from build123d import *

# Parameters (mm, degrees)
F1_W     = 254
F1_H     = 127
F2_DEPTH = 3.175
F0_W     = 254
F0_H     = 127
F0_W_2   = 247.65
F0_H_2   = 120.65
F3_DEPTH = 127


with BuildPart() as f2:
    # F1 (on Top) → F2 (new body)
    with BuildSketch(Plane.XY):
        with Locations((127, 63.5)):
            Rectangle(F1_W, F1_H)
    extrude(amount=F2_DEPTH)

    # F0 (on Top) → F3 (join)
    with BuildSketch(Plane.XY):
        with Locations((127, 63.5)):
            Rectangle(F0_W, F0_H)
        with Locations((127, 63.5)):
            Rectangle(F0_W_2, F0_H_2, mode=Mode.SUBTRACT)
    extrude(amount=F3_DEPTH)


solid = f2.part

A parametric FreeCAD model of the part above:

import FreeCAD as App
import Part
import Sketcher
from FreeCAD import Vector
Q = App.Units.Quantity

doc = App.newDocument("Part")
body = doc.addObject("PartDesign::Body", "Body")

sketch1 = body.newObject("Sketcher::SketchObject", "Sketch")
sketch1.AttachmentSupport = (doc.getObject("XY_Plane"), [""])
sketch1.MapMode = "FlatFace"
sketch1.addGeometry([
    Part.LineSegment(Vector(0, 127, 0), Vector(0, 0, 0)),
    Part.LineSegment(Vector(0, 0, 0), Vector(254, 0, 0)),
    Part.LineSegment(Vector(254, 0, 0), Vector(254, 127, 0)),
    Part.LineSegment(Vector(254, 127, 0), Vector(0, 127, 0)),
], False)
sketch1.addConstraint([
    Sketcher.Constraint("Coincident", 0, 2, 1, 1),
    Sketcher.Constraint("Coincident", 1, 2, 2, 1),
    Sketcher.Constraint("Coincident", 2, 2, 3, 1),
    Sketcher.Constraint("Coincident", 3, 2, 0, 1),
    Sketcher.Constraint("Vertical", 0),
    Sketcher.Constraint("Horizontal", 1),
    Sketcher.Constraint("Vertical", 2),
    Sketcher.Constraint("Horizontal", 3),
    Sketcher.Constraint("Coincident", 0, 2, -1, 1),
    Sketcher.Constraint("DistanceX", 1, 1, 1, 2, Q("10 in")),
    Sketcher.Constraint("DistanceY", 0, 2, 0, 1, Q("5 in")),
])
pad1 = body.newObject("PartDesign::Pad", "Pad")
pad1.Profile = sketch1
pad1.Length = Q("0.125 in")

sketch2 = body.newObject("Sketcher::SketchObject", "Sketch001")
sketch2.AttachmentSupport = (doc.getObject("XY_Plane"), [""])
sketch2.MapMode = "FlatFace"
sketch2.addGeometry([
    Part.LineSegment(Vector(0, 127, 0), Vector(0, 0, 0)),
    Part.LineSegment(Vector(0, 0, 0), Vector(254, 0, 0)),
    Part.LineSegment(Vector(254, 0, 0), Vector(254, 127, 0)),
    Part.LineSegment(Vector(254, 127, 0), Vector(0, 127, 0)),
    Part.LineSegment(Vector(250.825, 3.175, 0), Vector(3.175, 3.175, 0)),
    Part.LineSegment(Vector(3.175, 3.175, 0), Vector(3.175, 123.825, 0)),
    Part.LineSegment(Vector(3.175, 123.825, 0), Vector(250.825, 123.825, 0)),
    Part.LineSegment(Vector(250.825, 123.825, 0), Vector(250.825, 3.175, 0)),
], False)
sketch2.addConstraint([
    Sketcher.Constraint("Coincident", 0, 2, 1, 1),
    Sketcher.Constraint("Coincident", 1, 2, 2, 1),
    Sketcher.Constraint("Coincident", 2, 2, 3, 1),
    Sketcher.Constraint("Coincident", 3, 2, 0, 1),
    Sketcher.Constraint("Coincident", 4, 2, 5, 1),
    Sketcher.Constraint("Coincident", 5, 2, 6, 1),
    Sketcher.Constraint("Coincident", 6, 2, 7, 1),
    Sketcher.Constraint("Coincident", 7, 2, 4, 1),
    Sketcher.Constraint("Vertical", 0),
    Sketcher.Constraint("Horizontal", 1),
    Sketcher.Constraint("Vertical", 2),
    Sketcher.Constraint("Horizontal", 3),
    Sketcher.Constraint("Horizontal", 4),
    Sketcher.Constraint("Vertical", 5),
    Sketcher.Constraint("Horizontal", 6),
    Sketcher.Constraint("Vertical", 7),
    Sketcher.Constraint("Coincident", 0, 2, -1, 1),
    Sketcher.Constraint("DistanceX", 1, 1, 1, 2, Q("10 in")),
    Sketcher.Constraint("DistanceY", 0, 2, 0, 1, Q("5 in")),
    Sketcher.Constraint("DistanceX", 4, 2, 4, 1, Q("9.75 in")),
    Sketcher.Constraint("DistanceY", 5, 1, 5, 2, Q("4.75 in")),
    Sketcher.Constraint("DistanceX", -1, 1, 4, 2, Q("0.125 in")),
    Sketcher.Constraint("DistanceY", -1, 1, 4, 2, Q("0.125 in")),
])
pad2 = body.newObject("PartDesign::Pad", "Pad001")
pad2.Profile = sketch2
pad2.Length = Q("5 in")

doc.recompute()
